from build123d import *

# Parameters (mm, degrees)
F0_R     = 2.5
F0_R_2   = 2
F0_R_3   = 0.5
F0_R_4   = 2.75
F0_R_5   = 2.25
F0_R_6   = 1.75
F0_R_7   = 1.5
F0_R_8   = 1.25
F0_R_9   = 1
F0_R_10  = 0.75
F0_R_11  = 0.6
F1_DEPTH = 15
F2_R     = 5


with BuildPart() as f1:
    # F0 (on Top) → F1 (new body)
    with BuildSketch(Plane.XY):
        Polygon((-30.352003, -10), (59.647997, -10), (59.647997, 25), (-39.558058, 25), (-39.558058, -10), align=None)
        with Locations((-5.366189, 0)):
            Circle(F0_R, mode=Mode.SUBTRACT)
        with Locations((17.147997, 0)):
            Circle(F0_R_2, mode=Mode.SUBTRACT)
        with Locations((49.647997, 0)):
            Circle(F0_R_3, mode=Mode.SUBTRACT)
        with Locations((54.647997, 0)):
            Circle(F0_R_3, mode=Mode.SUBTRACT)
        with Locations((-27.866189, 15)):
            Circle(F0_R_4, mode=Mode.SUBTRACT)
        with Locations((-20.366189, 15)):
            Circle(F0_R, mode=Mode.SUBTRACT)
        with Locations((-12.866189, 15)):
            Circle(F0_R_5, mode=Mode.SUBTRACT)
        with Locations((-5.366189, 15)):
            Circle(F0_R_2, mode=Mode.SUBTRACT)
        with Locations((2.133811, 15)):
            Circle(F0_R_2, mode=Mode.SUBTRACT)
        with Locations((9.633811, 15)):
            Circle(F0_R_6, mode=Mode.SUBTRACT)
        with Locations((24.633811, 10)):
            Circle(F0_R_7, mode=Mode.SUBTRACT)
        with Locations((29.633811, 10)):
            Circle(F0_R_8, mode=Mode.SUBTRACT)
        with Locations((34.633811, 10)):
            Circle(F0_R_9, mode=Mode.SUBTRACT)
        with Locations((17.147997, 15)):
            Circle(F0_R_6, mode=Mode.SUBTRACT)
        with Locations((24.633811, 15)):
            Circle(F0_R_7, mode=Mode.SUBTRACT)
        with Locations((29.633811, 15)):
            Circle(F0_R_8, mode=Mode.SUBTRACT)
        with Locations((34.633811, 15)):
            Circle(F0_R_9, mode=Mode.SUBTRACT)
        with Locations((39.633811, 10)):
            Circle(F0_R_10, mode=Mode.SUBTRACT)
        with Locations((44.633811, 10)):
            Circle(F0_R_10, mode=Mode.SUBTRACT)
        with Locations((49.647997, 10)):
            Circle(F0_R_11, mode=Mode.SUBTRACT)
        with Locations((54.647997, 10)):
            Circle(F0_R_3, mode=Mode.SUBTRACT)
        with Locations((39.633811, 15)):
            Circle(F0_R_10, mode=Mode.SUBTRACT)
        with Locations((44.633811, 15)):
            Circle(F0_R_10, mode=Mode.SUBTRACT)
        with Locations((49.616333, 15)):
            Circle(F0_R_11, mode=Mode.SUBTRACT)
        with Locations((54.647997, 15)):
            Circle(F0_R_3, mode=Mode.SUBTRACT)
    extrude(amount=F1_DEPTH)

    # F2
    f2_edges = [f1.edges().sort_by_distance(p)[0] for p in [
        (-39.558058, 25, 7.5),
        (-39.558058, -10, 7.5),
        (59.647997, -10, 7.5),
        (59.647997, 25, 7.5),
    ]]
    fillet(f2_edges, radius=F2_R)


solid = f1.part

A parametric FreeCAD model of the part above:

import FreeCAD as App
import Part
import Sketcher

V = App.Vector
Q = App.Units.Quantity


def edges_at(feature, points):
    """Names of the edges that pass closest to the given points."""
    edges = feature.Shape.Edges
    near = lambda p: min(range(len(edges)), key=lambda i: edges[i].distToShape(Part.Vertex(*p))[0])
    return sorted({f"Edge{near(p) + 1}" for p in points})

doc = App.newDocument("Part")
params = doc.addObject("Spreadsheet::Sheet", "Params")
for row, (alias, value) in enumerate([
    ("sketch1_diameter", "5 mm"),
    ("sketch1_diameter2", "4 mm"),
    ("sketch1_diameter3", "1 mm"),
    ("sketch1_diameter4", "3 mm"),
    ("sketch1_diameter5", "2 mm"),
    ("pad1_length", "15 mm"),
    ("fillet_radius", "5 mm"),
], start=1):
    params.set(f"A{row}", alias)
    params.set(f"B{row}", "=" + value)
    params.setAlias(f"B{row}", alias)

body = doc.addObject("PartDesign::Body", "Body")

# Sketch on XY plane
sketch1 = doc.addObject("Sketcher::SketchObject", "Sketch")
body.addObject(sketch1)
sketch1.AttachmentSupport = (doc.XY_Plane, [""])
sketch1.MapMode = "FlatFace"
sketch1.addGeometry(Part.LineSegment(V(59.6, -10, 0), V(59.6, 25, 0)), False)
sketch1.addGeometry(Part.LineSegment(V(59.6, 25, 0), V(-39.6, 25, 0)), False)
sketch1.addGeometry(Part.LineSegment(V(-39.6, 25, 0), V(-39.6, -10, 0)), False)
sketch1.addGeometry(Part.LineSegment(V(-39.6, -10, 0), V(59.6, -10, 0)), False)
sketch1.addGeometry(Part.Circle(V(-5.4, 0, 0), V(0, 0, 1), 2.5), False)
sketch1.addGeometry(Part.Circle(V(17.1, 0, 0), V(0, 0, 1), 2), False)
sketch1.addGeometry(Part.Circle(V(49.6, 0, 0), V(0, 0, 1), 0.5), False)
sketch1.addGeometry(Part.Circle(V(54.6, 0, 0), V(0, 0, 1), 0.5), False)
sketch1.addGeometry(Part.Circle(V(-27.9, 15, 0), V(0, 0, 1), 2.8), False)
sketch1.addGeometry(Part.Circle(V(-20.4, 15, 0), V(0, 0, 1), 2.5), False)
sketch1.addGeometry(Part.Circle(V(-12.9, 15, 0), V(0, 0, 1), 2.2), False)
sketch1.addGeometry(Part.Circle(V(-5.4, 15, 0), V(0, 0, 1), 2), False)
sketch1.addGeometry(Part.Circle(V(2.1, 15, 0), V(0, 0, 1), 2), False)
sketch1.addGeometry(Part.Circle(V(9.6, 15, 0), V(0, 0, 1), 1.8), False)
sketch1.addGeometry(Part.Circle(V(24.6, 10, 0), V(0, 0, 1), 1.5), False)
sketch1.addGeometry(Part.Circle(V(29.6, 10, 0), V(0, 0, 1), 1.2), False)
sketch1.addGeometry(Part.Circle(V(34.6, 10, 0), V(0, 0, 1), 1), False)
sketch1.addGeometry(Part.Circle(V(39.6, 10, 0), V(0, 0, 1), 0.8), False)
sketch1.addGeometry(Part.Circle(V(44.6, 10, 0), V(0, 0, 1), 0.8), False)
sketch1.addGeometry(Part.Circle(V(49.6, 10, 0), V(0, 0, 1), 0.6), False)
sketch1.addGeometry(Part.Circle(V(54.6, 10, 0), V(0, 0, 1), 0.5), False)
sketch1.addGeometry(Part.Circle(V(17.1, 15, 0), V(0, 0, 1), 1.8), False)
sketch1.addGeometry(Part.Circle(V(24.6, 15, 0), V(0, 0, 1), 1.5), False)
sketch1.addGeometry(Part.Circle(V(29.6, 15, 0), V(0, 0, 1), 1.2), False)
sketch1.addGeometry(Part.Circle(V(34.6, 15, 0), V(0, 0, 1), 1), False)
sketch1.addGeometry(Part.Circle(V(39.6, 15, 0), V(0, 0, 1), 0.8), False)
sketch1.addGeometry(Part.Circle(V(44.6, 15, 0), V(0, 0, 1), 0.8), False)
sketch1.addGeometry(Part.Circle(V(49.6, 15, 0), V(0, 0, 1), 0.6), False)
sketch1.addGeometry(Part.Circle(V(54.6, 15, 0), V(0, 0, 1), 0.5), False)
sketch1.addConstraint(Sketcher.Constraint("Coincident", 0, 2, 1, 1))
sketch1.addConstraint(Sketcher.Constraint("Coincident", 1, 2, 2, 1))
sketch1.addConstraint(Sketcher.Constraint("Coincident", 2, 2, 3, 1))
sketch1.addConstraint(Sketcher.Constraint("Coincident", 3, 2, 0, 1))
sketch1.addConstraint(Sketcher.Constraint("Vertical", 0))
sketch1.addConstraint(Sketcher.Constraint("Horizontal", 1))
sketch1.addConstraint(Sketcher.Constraint("Vertical", 2))
sketch1.addConstraint(Sketcher.Constraint("Horizontal", 3))
sketch1.addConstraint(Sketcher.Constraint("Equal", 6, 7))
sketch1.addConstraint(Sketcher.Constraint("Equal", 4, 9))
sketch1.addConstraint(Sketcher.Constraint("Equal", 5, 11))
sketch1.addConstraint(Sketcher.Constraint("Equal", 11, 12))
sketch1.addConstraint(Sketcher.Constraint("Equal", 17, 18))
sketch1.addConstraint(Sketcher.Constraint("Equal", 7, 20))
sketch1.addConstraint(Sketcher.Constraint("Equal", 13, 21))
sketch1.addConstraint(Sketcher.Constraint("Equal", 14, 22))
sketch1.addConstraint(Sketcher.Constraint("Equal", 15, 23))
sketch1.addConstraint(Sketcher.Constraint("Equal", 16, 24))
sketch1.addConstraint(Sketcher.Constraint("Equal", 18, 25))
sketch1.addConstraint(Sketcher.Constraint("Equal", 25, 26))
sketch1.addConstraint(Sketcher.Constraint("Equal", 19, 27))
sketch1.addConstraint(Sketcher.Constraint("Equal", 20, 28))
sketch1.addConstraint(Sketcher.Constraint("PointOnObject", 4, 3, -1))
sketch1.addConstraint(Sketcher.Constraint("PointOnObject", 5, 3, -1))
sketch1.addConstraint(Sketcher.Constraint("PointOnObject", 6, 3, -1))
sketch1.addConstraint(Sketcher.Constraint("PointOnObject", 7, 3, -1))
sketch1.addConstraint(Sketcher.Constraint("Horizontal", 8, 3, 9, 3))
sketch1.addConstraint(Sketcher.Constraint("Horizontal", 9, 3, 10, 3))
sketch1.addConstraint(Sketcher.Constraint("Horizontal", 10, 3, 11, 3))
sketch1.addConstraint(Sketcher.Constraint("Horizontal", 11, 3, 12, 3))
sketch1.addConstraint(Sketcher.Constraint("Horizontal", 12, 3, 13, 3))
sketch1.addConstraint(Sketcher.Constraint("Horizontal", 14, 3, 15, 3))
sketch1.addConstraint(Sketcher.Constraint("Horizontal", 15, 3, 16, 3))
sketch1.addConstraint(Sketcher.Constraint("Horizontal", 16, 3, 17, 3))
sketch1.addConstraint(Sketcher.Constraint("Horizontal", 17, 3, 18, 3))
sketch1.addConstraint(Sketcher.Constraint("Horizontal", 18, 3, 19, 3))
sketch1.addConstraint(Sketcher.Constraint("Horizontal", 19, 3, 20, 3))
sketch1.addConstraint(Sketcher.Constraint("Horizontal", 13, 3, 21, 3))
sketch1.addConstraint(Sketcher.Constraint("Horizontal", 21, 3, 22, 3))
sketch1.addConstraint(Sketcher.Constraint("Horizontal", 22, 3, 23, 3))
sketch1.addConstraint(Sketcher.Constraint("Horizontal", 23, 3, 24, 3))
sketch1.addConstraint(Sketcher.Constraint("Horizontal", 24, 3, 25, 3))
sketch1.addConstraint(Sketcher.Constraint("Horizontal", 25, 3, 26, 3))
sketch1.addConstraint(Sketcher.Constraint("Horizontal", 26, 3, 27, 3))
sketch1.addConstraint(Sketcher.Constraint("Horizontal", 27, 3, 28, 3))
sketch1.addConstraint(Sketcher.Constraint("Vertical", 4, 3, 11, 3))
sketch1.addConstraint(Sketcher.Constraint("Vertical", 6, 3, 19, 3))
sketch1.addConstraint(Sketcher.Constraint("Vertical", 7, 3, 20, 3))
sketch1.addConstraint(Sketcher.Constraint("Vertical", 5, 3, 21, 3))
sketch1.addConstraint(Sketcher.Constraint("Vertical", 14, 3, 22, 3))
sketch1.addConstraint(Sketcher.Constraint("Vertical", 15, 3, 23, 3))
sketch1.addConstraint(Sketcher.Constraint("Vertical", 16, 3, 24, 3))
sketch1.addConstraint(Sketcher.Constraint("Vertical", 17, 3, 25, 3))
sketch1.addConstraint(Sketcher.Constraint("Vertical", 18, 3, 26, 3))
sketch1.addConstraint(Sketcher.Constraint("Vertical", 20, 3, 28, 3))
sketch1.addConstraint(Sketcher.Constraint("Diameter", 4, Q("5 mm")))
sketch1.addConstraint(Sketcher.Constraint("Diameter", 5, Q("4 mm")))
sketch1.addConstraint(Sketcher.Constraint("Diameter", 6, Q("1 mm")))
sketch1.addConstraint(Sketcher.Constraint("Diameter", 14, Q("3 mm")))
sketch1.addConstraint(Sketcher.Constraint("Diameter", 16, Q("2 mm")))
sketch1.addConstraint(Sketcher.Constraint("Diameter", 8, Q("5.5 mm")))
sketch1.addConstraint(Sketcher.Constraint("Diameter", 10, Q("4.5 mm")))
sketch1.addConstraint(Sketcher.Constraint("Diameter", 13, Q("3.5 mm")))
sketch1.addConstraint(Sketcher.Constraint("Diameter", 15, Q("2.5 mm")))
sketch1.addConstraint(Sketcher.Constraint("Diameter", 17, Q("1.5 mm")))
sketch1.addConstraint(Sketcher.Constraint("Diameter", 19, Q("1.2 mm")))
sketch1.addConstraint(Sketcher.Constraint("DistanceY", 0, 1, 0, 2, Q("35 mm")))
sketch1.addConstraint(Sketcher.Constraint("DistanceY", -1, 1, 8, 3, Q("15 mm")))
sketch1.addConstraint(Sketcher.Constraint("DistanceY", -1, 1, 14, 3, Q("10 mm")))
sketch1.addConstraint(Sketcher.Constraint("DistanceY", -1, 1, 0, 2, Q("25 mm")))
sketch1.addConstraint(Sketcher.Constraint("DistanceX", 6, 3, 7, 3, Q("5 mm")))
sketch1.addConstraint(Sketcher.Constraint("DistanceX", 9, 3, 4, 3, Q("15 mm")))
sketch1.addConstraint(Sketcher.Constraint("DistanceX", 8, 3, 10, 3, Q("15 mm")))
sketch1.addConstraint(Sketcher.Constraint("DistanceX", 10, 3, 12, 3, Q("15 mm")))
sketch1.addConstraint(Sketcher.Constraint("DistanceX", 11, 3, 13, 3, Q("15 mm")))
sketch1.addConstraint(Sketcher.Constraint("DistanceX", 13, 3, 14, 3, Q("15 mm")))
sketch1.addConstraint(Sketcher.Constraint("DistanceX", 14, 3, 15, 3, Q("5 mm")))
sketch1.addConstraint(Sketcher.Constraint("DistanceX", 15, 3, 16, 3, Q("5 mm")))
sketch1.addConstraint(Sketcher.Constraint("DistanceX", 16, 3, 17, 3, Q("5 mm")))
sketch1.addConstraint(Sketcher.Constraint("DistanceX", 17, 3, 18, 3, Q("5 mm")))
sketch1.addConstraint(Sketcher.Constraint("DistanceX", 28, 3, 0, 2, Q("5 mm")))
sketch1.addConstraint(Sketcher.Constraint("DistanceX", 5, 3, 6, 3, Q("32.5 mm")))
sketch1.addConstraint(Sketcher.Constraint("DistanceX", 8, 3, 4, 3, Q("22.5 mm")))
sketch1.addConstraint(Sketcher.Constraint("DistanceX", 1, 2, 1, 1, Q("99.206055 mm")))
sketch1.addConstraint(Sketcher.Constraint("DistanceX", 4, 3, -1, 1, Q("5.366189 mm")))
sketch1.addConstraint(Sketcher.Constraint("DistanceX", 1, 2, -1, 1, Q("39.558058 mm")))
sketch1.addConstraint(Sketcher.Constraint("DistanceX", 26, 3, 27, 3, Q("4.982522 mm")))
sketch1.setExpression("Constraints[55]", "Params.sketch1_diameter")
sketch1.setExpression("Constraints[56]", "Params.sketch1_diameter2")
sketch1.setExpression("Constraints[57]", "Params.sketch1_diameter3")
sketch1.setExpression("Constraints[58]", "Params.sketch1_diameter4")
sketch1.setExpression("Constraints[59]", "Params.sketch1_diameter5")
pad1 = doc.addObject("PartDesign::Pad", "Pad")
body.addObject(pad1)
pad1.Profile = sketch1
pad1.setExpression("Length", "Params.pad1_length")
doc.recompute()

fillet = doc.addObject("PartDesign::Fillet", "Fillet")
body.addObject(fillet)
fillet.Base = (pad1, edges_at(pad1, [
    (-39.558, 25, 7.5),
    (-39.558, -10, 7.5),
    (59.648, -10, 7.5),
    (59.648, 25, 7.5),
]))
fillet.setExpression("Radius", "Params.fillet_radius")

doc.recompute()
